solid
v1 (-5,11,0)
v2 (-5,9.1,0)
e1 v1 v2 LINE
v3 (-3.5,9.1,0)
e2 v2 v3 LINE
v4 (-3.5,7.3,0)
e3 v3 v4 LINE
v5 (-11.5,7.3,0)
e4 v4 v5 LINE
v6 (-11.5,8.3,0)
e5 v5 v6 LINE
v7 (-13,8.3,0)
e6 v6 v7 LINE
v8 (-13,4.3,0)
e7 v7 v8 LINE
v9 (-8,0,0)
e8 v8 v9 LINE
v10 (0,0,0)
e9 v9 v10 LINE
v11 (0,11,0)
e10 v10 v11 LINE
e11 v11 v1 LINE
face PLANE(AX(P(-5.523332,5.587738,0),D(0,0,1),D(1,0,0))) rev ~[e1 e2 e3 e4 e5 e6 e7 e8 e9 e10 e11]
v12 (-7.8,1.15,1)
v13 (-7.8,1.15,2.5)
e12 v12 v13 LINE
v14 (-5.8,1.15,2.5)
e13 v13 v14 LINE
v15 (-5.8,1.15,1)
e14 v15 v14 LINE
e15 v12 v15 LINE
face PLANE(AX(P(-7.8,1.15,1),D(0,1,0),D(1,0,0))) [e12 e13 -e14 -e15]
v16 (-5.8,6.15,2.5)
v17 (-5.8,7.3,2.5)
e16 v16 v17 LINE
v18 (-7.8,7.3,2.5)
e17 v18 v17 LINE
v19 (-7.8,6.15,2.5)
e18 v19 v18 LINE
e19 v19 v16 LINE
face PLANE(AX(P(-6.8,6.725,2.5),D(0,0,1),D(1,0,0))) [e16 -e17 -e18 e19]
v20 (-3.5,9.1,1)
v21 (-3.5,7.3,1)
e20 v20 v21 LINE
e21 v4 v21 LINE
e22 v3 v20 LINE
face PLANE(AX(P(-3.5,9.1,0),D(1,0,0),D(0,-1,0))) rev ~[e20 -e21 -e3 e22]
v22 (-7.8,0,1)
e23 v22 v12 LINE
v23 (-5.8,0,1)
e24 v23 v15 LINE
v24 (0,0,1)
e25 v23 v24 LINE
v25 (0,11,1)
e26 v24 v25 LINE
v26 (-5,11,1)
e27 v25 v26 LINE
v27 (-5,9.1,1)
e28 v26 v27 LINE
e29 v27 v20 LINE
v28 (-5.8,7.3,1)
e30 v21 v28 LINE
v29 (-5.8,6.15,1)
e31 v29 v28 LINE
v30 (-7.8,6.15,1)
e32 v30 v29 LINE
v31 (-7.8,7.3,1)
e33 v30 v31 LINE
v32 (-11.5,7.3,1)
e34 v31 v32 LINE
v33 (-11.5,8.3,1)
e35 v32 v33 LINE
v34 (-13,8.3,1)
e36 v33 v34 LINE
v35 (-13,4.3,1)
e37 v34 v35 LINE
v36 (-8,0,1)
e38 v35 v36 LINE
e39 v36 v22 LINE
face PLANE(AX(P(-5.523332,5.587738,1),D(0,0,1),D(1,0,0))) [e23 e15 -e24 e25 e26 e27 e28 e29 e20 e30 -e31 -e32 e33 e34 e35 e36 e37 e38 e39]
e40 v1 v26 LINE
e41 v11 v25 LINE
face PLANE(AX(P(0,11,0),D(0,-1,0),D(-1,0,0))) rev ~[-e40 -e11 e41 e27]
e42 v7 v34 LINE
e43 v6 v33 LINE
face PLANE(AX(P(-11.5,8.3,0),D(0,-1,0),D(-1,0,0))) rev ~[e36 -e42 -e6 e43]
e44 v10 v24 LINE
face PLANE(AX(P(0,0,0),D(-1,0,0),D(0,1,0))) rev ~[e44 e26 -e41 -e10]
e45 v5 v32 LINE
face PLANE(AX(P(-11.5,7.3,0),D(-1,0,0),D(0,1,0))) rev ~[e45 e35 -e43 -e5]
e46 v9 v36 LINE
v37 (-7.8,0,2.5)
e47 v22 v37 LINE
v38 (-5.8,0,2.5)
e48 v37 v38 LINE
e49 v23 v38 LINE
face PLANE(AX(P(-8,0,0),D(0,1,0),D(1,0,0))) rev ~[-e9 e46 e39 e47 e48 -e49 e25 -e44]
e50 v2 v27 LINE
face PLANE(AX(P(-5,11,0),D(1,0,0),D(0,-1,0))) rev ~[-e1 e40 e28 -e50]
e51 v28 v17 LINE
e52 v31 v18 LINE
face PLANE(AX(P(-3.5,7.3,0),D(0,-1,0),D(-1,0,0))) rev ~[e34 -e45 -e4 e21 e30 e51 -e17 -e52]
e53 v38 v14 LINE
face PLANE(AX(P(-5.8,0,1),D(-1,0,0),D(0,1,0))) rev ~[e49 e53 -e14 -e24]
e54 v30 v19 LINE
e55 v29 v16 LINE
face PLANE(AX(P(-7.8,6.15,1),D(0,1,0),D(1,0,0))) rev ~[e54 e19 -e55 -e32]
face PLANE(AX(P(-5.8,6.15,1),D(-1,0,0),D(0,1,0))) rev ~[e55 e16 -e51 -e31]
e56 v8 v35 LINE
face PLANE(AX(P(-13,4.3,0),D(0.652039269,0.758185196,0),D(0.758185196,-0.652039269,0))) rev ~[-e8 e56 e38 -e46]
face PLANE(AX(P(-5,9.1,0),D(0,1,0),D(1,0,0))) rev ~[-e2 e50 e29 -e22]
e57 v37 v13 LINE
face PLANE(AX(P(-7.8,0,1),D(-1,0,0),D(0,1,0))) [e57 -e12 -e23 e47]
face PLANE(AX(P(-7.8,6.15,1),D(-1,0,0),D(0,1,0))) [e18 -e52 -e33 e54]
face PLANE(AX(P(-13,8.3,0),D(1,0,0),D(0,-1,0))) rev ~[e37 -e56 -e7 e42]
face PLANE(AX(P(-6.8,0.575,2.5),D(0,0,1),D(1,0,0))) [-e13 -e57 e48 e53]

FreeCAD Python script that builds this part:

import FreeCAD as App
import Part
import Sketcher

V = App.Vector


def add_polygon(sketch, points):
    """Adds a closed chain of lines whose ends are joined by coincident constraints."""
    first, n = sketch.GeometryCount, len(points)
    for a, b in zip(points, points[1:] + points[:1]):
        sketch.addGeometry(Part.LineSegment(App.Vector(*a, 0), App.Vector(*b, 0)), False)
    for i in range(n):
        sketch.addConstraint(Sketcher.Constraint("Coincident", first + i, 2, first + (i + 1) % n, 1))

doc = App.newDocument("Part")
body = doc.addObject("PartDesign::Body", "Body")

# Sketch on XY plane
sketch1 = body.newObject("Sketcher::SketchObject", "Sketch")
sketch1.AttachmentSupport = (doc.getObject("XY_Plane"), [""])
sketch1.MapMode = "FlatFace"
add_polygon(sketch1, [(-8, 0), (0, 0), (0, 11), (-5, 11), (-5, 9.1), (-3.5, 9.1), (-3.5, 7.3), (-11.5, 7.3), (-11.5, 8.3), (-13, 8.3), (-13, 4.3)])  # lines 0-10
sketch1.addConstraint([
    Sketcher.Constraint("Horizontal", 0),
    Sketcher.Constraint("Vertical", 1),
    Sketcher.Constraint("Horizontal", 2),
    Sketcher.Constraint("Vertical", 3),
    Sketcher.Constraint("Horizontal", 4),
    Sketcher.Constraint("Vertical", 5),
    Sketcher.Constraint("Horizontal", 6),
    Sketcher.Constraint("Vertical", 7),
    Sketcher.Constraint("Horizontal", 8),
    Sketcher.Constraint("Vertical", 9),
    Sketcher.Constraint("Coincident", 0, 2, -1, 1),
    Sketcher.Constraint("Equal", 0, 6),
    Sketcher.Constraint("Equal", 4, 8),
    Sketcher.Constraint("DistanceX", 0, 1, 0, 2, 8.0),
    Sketcher.Constraint("DistanceX", 2, 2, 2, 1, 5.0),
    Sketcher.Constraint("DistanceY", 1, 1, 1, 2, 11.0),
    Sketcher.Constraint("DistanceY", 7, 1, 7, 2, 1.0),
    Sketcher.Constraint("DistanceY", 9, 2, 9, 1, 4.0),
    Sketcher.Constraint("DistanceX", 4, 1, 4, 2, 1.5),
    Sketcher.Constraint("DistanceY", 3, 2, 3, 1, 1.9),
    Sketcher.Constraint("DistanceY", 5, 2, 5, 1, 1.8),
])
pad1 = body.newObject("PartDesign::Pad", "Pad")
pad1.Profile = sketch1
pad1.Length = 1

# Sketch on XY plane
sketch2 = body.newObject("Sketcher::SketchObject", "Sketch001")
sketch2.AttachmentSupport = (doc.getObject("XY_Plane"), [""])
sketch2.MapMode = "FlatFace"
sketch2.AttachmentOffset = App.Placement(V(0, 0, 1), App.Rotation())
add_polygon(sketch2, [(-7.8, 1.15), (-7.8, 0), (-5.8, 0), (-5.8, 1.15)])  # lines 0-3
add_polygon(sketch2, [(-7.8, 7.3), (-7.8, 6.15), (-5.8, 6.15), (-5.8, 7.3)])  # lines 4-7
sketch2.addConstraint([
    Sketcher.Constraint("Vertical", 0),
    Sketcher.Constraint("Horizontal", 1),
    Sketcher.Constraint("Vertical", 2),
    Sketcher.Constraint("Horizontal", 3),
    Sketcher.Constraint("Vertical", 4),
    Sketcher.Constraint("Horizontal", 5),
    Sketcher.Constraint("Vertical", 6),
    Sketcher.Constraint("Horizontal", 7),
    Sketcher.Constraint("PointOnObject", 0, 2, -1),
    Sketcher.Constraint("Vertical", 3, 2, 4, 2),
    Sketcher.Constraint("Vertical", 2, 2, 5, 2),
    Sketcher.Constraint("Equal", 2, 4),
    Sketcher.Constraint("DistanceX", 1, 1, 1, 2, 2.0),
    Sketcher.Constraint("DistanceY", 3, 2, 4, 2, 5.0),
    Sketcher.Constraint("DistanceY", 0, 2, 0, 1, 1.15),
    Sketcher.Constraint("DistanceX", 0, 2, -1, 1, 7.8),
])
pad2 = body.newObject("PartDesign::Pad", "Pad001")
pad2.Profile = sketch2
pad2.Length = 1.5

doc.recompute()
